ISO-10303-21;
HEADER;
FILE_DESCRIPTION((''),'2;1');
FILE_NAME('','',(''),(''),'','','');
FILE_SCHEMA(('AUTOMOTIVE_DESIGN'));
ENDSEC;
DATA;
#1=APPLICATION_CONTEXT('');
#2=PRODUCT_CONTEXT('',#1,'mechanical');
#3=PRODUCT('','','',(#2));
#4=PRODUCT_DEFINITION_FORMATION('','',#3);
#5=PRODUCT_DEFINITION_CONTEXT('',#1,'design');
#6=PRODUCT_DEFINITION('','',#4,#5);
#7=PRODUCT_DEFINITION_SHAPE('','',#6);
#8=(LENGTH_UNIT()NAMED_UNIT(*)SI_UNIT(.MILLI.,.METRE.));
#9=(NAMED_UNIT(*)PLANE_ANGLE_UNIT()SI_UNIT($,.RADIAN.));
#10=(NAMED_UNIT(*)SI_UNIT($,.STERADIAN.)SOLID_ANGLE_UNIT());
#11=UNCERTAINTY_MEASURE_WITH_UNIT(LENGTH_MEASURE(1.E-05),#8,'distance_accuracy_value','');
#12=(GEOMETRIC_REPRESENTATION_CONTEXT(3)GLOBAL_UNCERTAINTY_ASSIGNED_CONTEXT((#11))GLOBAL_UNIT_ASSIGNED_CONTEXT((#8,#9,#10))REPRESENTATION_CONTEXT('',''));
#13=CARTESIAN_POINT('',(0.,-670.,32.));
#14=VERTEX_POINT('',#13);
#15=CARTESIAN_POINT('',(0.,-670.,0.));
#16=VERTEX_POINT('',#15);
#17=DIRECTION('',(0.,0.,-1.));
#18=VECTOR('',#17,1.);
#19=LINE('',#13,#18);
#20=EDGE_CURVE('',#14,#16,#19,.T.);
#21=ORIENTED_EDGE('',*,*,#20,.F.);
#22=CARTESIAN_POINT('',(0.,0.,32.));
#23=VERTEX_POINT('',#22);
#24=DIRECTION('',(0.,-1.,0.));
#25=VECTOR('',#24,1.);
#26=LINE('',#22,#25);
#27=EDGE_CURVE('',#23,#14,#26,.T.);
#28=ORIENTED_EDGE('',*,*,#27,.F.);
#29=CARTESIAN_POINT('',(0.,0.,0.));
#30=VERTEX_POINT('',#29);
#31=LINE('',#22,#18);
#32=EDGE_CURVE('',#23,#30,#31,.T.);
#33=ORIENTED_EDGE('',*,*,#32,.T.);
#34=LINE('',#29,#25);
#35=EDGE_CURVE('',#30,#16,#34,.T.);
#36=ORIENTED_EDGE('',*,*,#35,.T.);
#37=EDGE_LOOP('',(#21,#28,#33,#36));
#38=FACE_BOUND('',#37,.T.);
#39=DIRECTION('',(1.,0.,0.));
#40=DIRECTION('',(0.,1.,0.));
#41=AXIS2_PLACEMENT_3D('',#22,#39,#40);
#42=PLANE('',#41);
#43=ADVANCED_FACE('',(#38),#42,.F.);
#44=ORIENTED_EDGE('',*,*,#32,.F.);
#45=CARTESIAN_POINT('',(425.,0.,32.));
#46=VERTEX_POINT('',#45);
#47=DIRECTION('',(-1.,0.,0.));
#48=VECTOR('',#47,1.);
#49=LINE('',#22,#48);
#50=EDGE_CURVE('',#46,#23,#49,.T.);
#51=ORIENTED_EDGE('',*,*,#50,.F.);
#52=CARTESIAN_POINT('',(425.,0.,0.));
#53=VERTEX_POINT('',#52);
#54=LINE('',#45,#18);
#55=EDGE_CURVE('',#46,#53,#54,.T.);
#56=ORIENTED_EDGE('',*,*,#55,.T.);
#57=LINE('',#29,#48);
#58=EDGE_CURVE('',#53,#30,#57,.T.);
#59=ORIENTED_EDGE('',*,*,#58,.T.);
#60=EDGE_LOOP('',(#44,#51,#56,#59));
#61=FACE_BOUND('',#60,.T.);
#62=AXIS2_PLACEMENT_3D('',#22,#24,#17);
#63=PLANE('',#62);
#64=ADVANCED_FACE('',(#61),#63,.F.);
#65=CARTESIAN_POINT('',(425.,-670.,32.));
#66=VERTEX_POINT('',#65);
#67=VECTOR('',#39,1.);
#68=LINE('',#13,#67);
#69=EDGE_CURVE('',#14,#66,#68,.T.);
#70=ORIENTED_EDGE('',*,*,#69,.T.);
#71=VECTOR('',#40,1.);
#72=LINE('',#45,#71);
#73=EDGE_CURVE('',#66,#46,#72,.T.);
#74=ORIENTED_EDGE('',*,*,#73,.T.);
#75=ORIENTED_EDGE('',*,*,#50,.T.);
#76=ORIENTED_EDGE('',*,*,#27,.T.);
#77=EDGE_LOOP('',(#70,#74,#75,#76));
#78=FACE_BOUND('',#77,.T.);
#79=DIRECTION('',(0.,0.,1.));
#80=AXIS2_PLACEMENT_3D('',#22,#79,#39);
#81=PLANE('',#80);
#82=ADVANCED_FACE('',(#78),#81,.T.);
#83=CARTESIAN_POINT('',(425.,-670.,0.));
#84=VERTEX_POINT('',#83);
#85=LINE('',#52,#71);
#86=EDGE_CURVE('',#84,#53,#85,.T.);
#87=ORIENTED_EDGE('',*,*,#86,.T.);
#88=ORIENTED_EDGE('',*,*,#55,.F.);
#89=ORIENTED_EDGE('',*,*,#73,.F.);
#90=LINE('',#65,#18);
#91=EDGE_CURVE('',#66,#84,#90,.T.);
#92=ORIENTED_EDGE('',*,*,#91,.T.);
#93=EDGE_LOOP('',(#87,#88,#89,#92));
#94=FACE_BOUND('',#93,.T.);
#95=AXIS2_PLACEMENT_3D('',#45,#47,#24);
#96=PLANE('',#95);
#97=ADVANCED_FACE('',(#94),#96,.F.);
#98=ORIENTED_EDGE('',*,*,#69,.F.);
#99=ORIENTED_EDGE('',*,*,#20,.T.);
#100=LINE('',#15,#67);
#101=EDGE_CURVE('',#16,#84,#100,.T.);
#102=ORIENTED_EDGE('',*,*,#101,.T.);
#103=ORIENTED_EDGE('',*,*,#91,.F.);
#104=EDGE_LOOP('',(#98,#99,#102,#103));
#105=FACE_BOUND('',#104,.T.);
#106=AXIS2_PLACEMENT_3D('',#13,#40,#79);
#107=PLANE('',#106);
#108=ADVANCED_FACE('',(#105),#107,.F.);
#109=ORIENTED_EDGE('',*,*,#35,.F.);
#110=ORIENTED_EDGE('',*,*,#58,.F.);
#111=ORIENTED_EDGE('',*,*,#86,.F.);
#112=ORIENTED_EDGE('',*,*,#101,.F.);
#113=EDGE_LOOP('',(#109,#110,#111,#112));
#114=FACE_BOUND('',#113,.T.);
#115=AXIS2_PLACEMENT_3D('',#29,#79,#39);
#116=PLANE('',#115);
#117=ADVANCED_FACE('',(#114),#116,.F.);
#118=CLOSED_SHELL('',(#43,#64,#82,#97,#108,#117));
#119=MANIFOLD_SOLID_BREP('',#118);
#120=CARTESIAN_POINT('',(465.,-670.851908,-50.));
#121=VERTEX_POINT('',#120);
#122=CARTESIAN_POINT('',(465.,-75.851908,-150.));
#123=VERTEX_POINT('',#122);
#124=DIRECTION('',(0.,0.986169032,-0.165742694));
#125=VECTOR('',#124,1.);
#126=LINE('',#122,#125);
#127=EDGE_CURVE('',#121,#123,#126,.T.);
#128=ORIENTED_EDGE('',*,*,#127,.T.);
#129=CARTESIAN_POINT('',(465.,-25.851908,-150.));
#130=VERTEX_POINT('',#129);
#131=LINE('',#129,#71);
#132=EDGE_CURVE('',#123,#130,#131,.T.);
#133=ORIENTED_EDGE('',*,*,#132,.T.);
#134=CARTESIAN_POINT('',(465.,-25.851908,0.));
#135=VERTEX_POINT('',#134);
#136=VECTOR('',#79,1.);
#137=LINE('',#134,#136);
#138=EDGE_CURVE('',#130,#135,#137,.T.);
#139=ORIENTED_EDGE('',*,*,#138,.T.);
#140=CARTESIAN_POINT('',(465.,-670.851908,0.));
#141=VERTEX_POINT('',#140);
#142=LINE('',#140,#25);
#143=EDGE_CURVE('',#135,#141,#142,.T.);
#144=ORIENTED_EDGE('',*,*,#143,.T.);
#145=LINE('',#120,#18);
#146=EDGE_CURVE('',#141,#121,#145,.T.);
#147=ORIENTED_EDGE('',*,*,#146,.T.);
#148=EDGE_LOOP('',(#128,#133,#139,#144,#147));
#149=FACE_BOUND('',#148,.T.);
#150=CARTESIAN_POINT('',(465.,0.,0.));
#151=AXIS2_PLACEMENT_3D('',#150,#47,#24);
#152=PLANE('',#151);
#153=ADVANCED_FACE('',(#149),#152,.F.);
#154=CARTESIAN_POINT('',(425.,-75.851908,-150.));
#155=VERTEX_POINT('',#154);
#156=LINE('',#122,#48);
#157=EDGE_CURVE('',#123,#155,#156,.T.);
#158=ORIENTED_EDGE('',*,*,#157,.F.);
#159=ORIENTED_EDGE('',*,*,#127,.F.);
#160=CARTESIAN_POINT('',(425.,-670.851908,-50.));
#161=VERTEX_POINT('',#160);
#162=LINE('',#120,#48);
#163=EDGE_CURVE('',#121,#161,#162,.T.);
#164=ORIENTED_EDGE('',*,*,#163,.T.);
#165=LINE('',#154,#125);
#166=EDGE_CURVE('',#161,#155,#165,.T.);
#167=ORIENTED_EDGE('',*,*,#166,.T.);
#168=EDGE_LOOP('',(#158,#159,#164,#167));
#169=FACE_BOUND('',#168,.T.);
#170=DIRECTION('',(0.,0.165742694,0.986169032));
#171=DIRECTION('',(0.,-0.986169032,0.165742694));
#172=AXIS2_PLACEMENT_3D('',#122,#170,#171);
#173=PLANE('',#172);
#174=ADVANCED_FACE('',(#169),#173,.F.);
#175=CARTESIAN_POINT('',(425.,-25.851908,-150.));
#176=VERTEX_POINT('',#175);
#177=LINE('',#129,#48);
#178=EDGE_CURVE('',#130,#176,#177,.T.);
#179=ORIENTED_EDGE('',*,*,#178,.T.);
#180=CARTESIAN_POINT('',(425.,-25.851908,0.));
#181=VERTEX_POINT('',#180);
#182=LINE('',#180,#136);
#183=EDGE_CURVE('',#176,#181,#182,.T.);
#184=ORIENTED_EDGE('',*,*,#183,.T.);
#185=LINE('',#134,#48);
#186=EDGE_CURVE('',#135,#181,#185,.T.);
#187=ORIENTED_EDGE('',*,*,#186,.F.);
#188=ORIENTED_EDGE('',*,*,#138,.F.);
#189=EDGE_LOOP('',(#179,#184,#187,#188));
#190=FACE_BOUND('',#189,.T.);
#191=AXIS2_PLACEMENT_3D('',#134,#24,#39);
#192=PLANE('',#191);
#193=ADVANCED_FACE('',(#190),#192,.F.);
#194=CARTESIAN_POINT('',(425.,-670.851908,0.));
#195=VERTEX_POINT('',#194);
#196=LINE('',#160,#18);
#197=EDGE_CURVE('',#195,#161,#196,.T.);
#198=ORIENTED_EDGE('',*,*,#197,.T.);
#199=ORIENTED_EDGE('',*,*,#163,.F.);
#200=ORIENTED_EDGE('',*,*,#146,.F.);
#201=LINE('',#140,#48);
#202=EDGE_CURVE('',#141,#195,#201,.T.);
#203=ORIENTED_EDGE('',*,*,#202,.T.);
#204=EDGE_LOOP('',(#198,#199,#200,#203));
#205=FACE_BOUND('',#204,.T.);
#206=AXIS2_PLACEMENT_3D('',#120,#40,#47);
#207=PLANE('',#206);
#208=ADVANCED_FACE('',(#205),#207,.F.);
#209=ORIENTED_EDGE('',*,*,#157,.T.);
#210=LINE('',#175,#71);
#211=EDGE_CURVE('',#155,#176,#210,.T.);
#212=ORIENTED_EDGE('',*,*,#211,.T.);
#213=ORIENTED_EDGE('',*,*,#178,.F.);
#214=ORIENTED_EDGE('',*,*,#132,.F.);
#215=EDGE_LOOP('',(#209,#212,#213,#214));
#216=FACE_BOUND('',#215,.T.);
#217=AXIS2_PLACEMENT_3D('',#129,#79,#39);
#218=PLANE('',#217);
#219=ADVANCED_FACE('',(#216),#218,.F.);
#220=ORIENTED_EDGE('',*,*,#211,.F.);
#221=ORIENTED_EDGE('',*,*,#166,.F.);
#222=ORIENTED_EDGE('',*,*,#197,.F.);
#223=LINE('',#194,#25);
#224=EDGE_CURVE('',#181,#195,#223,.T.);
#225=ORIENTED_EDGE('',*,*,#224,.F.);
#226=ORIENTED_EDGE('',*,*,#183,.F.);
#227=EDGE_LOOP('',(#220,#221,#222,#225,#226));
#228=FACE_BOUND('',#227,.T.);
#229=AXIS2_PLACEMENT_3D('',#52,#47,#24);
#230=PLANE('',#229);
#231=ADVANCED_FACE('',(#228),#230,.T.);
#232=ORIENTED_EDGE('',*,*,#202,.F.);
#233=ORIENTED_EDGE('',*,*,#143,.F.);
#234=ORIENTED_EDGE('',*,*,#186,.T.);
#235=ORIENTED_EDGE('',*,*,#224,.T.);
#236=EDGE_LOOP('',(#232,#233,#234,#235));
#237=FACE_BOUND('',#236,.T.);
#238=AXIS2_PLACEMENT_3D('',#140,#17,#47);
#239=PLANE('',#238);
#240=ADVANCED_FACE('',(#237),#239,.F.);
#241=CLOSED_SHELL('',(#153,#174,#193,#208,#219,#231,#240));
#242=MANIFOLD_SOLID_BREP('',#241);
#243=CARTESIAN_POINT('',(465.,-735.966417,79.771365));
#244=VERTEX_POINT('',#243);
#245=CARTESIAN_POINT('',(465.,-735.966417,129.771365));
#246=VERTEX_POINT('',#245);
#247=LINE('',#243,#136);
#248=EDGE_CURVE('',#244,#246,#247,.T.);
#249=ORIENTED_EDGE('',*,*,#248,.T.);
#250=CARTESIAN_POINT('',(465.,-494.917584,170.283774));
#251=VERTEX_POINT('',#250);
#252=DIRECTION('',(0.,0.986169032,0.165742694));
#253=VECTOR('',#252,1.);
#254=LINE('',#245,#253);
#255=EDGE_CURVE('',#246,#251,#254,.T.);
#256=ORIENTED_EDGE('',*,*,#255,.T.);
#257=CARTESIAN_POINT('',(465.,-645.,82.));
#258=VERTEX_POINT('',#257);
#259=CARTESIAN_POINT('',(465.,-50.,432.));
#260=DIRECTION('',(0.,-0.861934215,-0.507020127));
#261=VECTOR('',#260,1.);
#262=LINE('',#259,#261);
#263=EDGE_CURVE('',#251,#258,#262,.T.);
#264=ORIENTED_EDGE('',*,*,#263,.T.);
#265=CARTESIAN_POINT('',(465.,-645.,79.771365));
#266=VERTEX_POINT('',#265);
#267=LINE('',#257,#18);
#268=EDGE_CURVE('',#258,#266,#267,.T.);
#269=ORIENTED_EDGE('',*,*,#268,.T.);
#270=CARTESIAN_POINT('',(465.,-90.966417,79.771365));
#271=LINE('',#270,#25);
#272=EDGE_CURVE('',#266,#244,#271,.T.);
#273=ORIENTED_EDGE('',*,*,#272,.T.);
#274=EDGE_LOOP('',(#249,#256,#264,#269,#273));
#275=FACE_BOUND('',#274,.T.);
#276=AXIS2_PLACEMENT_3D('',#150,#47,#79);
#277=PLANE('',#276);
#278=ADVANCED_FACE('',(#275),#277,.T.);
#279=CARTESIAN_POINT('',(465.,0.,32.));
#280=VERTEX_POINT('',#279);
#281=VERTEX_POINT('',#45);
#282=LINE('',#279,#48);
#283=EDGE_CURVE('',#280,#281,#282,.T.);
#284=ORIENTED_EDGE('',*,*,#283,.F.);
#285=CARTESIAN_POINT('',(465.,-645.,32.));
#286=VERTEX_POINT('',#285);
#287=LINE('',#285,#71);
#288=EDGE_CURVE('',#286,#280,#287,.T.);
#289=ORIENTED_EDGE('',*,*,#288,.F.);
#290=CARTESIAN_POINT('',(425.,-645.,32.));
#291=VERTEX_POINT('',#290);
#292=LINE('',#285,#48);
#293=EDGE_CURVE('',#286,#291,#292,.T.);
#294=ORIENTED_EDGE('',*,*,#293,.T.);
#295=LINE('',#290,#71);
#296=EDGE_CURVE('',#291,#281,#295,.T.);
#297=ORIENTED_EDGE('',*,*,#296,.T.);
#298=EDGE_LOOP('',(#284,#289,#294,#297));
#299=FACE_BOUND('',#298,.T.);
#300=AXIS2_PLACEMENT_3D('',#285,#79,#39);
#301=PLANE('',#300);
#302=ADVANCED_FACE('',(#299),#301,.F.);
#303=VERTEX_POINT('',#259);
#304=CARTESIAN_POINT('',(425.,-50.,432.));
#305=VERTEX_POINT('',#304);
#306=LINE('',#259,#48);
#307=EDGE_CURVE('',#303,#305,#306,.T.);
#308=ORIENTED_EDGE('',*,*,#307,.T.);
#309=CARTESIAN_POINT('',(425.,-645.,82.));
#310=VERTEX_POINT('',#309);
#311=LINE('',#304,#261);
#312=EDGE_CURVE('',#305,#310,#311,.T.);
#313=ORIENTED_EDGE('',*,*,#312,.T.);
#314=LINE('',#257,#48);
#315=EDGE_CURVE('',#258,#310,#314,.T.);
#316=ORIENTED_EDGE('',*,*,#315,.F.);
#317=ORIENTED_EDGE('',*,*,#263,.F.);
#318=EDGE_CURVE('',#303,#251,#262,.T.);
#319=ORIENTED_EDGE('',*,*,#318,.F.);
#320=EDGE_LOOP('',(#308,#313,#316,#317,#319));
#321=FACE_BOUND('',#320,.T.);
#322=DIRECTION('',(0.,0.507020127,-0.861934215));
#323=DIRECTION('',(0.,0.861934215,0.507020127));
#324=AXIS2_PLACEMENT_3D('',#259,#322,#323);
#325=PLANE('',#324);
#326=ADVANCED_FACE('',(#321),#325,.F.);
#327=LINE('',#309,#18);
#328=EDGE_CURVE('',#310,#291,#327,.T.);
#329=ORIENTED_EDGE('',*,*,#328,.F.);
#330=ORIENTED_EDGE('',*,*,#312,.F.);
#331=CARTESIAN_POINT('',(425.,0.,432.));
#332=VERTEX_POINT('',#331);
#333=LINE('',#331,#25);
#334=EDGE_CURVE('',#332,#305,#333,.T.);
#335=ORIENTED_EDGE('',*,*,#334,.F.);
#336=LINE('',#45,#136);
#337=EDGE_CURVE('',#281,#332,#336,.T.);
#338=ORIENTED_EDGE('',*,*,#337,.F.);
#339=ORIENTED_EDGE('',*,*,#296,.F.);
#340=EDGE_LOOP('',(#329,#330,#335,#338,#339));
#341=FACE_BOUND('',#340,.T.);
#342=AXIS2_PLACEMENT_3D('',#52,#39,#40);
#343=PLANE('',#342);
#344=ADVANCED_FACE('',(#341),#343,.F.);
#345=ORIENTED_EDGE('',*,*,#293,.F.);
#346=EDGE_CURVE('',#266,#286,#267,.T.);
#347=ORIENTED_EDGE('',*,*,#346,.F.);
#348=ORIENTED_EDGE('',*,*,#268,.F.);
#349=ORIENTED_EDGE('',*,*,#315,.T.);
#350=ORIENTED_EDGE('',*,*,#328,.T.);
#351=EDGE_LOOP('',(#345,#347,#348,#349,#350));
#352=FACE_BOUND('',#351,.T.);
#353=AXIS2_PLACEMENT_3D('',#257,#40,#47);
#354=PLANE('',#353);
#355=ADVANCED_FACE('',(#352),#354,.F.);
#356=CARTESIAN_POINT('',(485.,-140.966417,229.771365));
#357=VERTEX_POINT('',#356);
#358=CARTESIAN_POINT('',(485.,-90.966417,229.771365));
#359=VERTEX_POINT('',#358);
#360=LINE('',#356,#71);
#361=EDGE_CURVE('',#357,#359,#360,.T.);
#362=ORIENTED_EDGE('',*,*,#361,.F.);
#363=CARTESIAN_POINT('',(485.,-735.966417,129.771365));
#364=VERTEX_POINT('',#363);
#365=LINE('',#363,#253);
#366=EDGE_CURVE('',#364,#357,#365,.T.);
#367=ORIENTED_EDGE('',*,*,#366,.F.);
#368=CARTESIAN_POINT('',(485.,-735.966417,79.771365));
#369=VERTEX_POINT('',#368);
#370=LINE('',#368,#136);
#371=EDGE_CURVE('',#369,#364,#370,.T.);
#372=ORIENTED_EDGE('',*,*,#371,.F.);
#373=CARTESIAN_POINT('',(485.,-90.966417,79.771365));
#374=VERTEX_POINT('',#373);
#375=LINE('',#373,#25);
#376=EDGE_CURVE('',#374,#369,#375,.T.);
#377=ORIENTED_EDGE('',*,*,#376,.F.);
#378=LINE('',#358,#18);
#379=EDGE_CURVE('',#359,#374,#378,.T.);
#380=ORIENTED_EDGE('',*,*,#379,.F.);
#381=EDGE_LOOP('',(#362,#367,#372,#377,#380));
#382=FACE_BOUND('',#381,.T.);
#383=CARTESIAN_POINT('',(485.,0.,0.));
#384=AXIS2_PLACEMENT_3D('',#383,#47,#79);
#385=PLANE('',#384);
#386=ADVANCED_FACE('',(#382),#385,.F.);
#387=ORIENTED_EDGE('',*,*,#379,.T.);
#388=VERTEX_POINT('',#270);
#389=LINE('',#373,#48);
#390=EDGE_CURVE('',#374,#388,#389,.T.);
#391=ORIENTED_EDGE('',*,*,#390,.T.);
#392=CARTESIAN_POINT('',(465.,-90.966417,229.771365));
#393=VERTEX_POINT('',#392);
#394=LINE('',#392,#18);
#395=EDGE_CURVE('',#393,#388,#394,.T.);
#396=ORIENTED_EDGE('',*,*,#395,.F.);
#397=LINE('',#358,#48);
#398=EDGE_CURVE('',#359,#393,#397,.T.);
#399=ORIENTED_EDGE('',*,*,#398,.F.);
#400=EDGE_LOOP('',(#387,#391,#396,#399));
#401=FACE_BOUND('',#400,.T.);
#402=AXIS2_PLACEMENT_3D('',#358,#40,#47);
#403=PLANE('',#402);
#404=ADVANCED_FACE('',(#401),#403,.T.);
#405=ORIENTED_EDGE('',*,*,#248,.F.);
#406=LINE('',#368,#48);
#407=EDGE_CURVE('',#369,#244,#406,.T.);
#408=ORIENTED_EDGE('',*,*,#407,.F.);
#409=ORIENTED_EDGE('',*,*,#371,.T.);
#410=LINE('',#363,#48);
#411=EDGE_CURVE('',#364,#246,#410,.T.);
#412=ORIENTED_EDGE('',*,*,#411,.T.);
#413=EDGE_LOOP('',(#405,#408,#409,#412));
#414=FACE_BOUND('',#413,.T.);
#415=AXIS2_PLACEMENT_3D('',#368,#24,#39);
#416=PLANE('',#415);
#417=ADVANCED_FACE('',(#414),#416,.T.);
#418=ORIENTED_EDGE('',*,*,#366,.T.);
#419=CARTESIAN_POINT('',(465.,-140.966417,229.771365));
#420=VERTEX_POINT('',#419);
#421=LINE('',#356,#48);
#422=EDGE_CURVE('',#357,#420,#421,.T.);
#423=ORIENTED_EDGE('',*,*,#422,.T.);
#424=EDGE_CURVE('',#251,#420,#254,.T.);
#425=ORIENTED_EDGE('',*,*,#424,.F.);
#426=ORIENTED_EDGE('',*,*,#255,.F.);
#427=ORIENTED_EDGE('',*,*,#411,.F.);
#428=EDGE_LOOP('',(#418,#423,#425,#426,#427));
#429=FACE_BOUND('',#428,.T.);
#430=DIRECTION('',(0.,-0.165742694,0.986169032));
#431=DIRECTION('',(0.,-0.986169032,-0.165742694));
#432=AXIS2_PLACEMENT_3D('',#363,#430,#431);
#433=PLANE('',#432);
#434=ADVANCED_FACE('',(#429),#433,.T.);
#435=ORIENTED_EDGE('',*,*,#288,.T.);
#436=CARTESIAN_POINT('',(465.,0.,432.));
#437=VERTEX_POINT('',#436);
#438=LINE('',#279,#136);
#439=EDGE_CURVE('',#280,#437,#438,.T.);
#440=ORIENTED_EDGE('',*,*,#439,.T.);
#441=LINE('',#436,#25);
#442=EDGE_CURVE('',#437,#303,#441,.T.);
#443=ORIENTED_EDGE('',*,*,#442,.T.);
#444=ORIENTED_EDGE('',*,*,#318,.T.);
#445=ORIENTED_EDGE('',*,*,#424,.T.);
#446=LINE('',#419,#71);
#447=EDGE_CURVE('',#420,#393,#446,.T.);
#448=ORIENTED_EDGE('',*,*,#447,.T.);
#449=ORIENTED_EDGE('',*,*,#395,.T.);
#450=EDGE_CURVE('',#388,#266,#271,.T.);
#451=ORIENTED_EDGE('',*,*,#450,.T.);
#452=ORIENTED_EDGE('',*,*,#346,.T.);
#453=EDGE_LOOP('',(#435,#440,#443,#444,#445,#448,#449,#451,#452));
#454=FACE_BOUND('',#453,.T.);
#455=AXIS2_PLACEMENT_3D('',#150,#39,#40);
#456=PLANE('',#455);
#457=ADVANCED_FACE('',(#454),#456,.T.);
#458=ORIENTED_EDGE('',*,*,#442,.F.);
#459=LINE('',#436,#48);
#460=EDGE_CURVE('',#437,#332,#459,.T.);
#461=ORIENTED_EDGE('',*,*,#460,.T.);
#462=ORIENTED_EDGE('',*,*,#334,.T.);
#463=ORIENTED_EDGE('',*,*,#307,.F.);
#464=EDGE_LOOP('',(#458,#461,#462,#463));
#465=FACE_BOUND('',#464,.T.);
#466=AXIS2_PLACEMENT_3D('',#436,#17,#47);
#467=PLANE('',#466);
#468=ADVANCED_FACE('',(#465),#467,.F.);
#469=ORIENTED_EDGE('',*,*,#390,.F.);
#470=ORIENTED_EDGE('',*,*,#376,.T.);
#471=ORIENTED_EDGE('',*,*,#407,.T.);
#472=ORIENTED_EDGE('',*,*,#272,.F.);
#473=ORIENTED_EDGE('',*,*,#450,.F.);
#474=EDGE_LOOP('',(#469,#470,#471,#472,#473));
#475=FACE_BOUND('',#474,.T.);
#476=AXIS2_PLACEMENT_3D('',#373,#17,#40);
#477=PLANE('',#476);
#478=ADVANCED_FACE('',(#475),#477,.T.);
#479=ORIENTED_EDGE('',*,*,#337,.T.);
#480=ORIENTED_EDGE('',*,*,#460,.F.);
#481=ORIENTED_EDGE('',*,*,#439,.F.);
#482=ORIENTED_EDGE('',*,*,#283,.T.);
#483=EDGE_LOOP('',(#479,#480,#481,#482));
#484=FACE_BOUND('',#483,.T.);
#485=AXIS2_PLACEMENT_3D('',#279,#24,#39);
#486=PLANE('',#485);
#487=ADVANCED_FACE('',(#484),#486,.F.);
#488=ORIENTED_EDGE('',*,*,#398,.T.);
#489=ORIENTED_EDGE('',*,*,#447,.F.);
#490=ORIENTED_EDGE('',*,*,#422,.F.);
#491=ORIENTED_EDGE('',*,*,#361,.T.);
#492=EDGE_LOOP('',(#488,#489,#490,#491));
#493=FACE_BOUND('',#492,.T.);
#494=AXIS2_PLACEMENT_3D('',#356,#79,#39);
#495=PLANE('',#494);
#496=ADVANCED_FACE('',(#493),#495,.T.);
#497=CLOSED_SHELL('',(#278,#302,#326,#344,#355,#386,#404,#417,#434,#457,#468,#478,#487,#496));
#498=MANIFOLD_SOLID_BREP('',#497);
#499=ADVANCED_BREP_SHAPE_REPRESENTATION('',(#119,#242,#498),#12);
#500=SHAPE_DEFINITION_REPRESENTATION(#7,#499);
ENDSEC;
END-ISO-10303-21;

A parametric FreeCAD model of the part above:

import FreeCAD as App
import Part
import Sketcher


def add_polygon(sketch, points):
    """Adds a closed chain of lines whose ends are joined by coincident constraints."""
    first, n = sketch.GeometryCount, len(points)
    for a, b in zip(points, points[1:] + points[:1]):
        sketch.addGeometry(Part.LineSegment(App.Vector(*a, 0), App.Vector(*b, 0)), False)
    for i in range(n):
        sketch.addConstraint(Sketcher.Constraint("Coincident", first + i, 2, first + (i + 1) % n, 1))

doc = App.newDocument("Part")
body = doc.addObject("PartDesign::Body", "Body")

sketch1 = doc.addObject("Sketcher::SketchObject", "Sketch")
body.addObject(sketch1)
sketch1.AttachmentSupport = (doc.XY_Plane, [""])
sketch1.MapMode = "FlatFace"
add_polygon(sketch1, [(0, 0), (0, -670), (425, -670), (425, 0)])
sketch1.addConstraint([
    Sketcher.Constraint("Vertical", 0),
    Sketcher.Constraint("Horizontal", 1),
    Sketcher.Constraint("Vertical", 2),
    Sketcher.Constraint("Horizontal", 3),
    Sketcher.Constraint("Coincident", 3, 2, -1, 1),
    Sketcher.Constraint("DistanceX", 1, 1, 1, 2, 425.0),
    Sketcher.Constraint("DistanceY", 0, 2, 0, 1, 670.0),
])
pad1 = doc.addObject("PartDesign::Pad", "Pad")
body.addObject(pad1)
pad1.Profile = sketch1
pad1.Length = 32
body2 = doc.addObject("PartDesign::Body", "Body001")

sketch2 = doc.addObject("Sketcher::SketchObject", "Sketch001")
body2.addObject(sketch2)
sketch2.AttachmentSupport = (doc.getObject("YZ_Plane001"), [""])
sketch2.MapMode = "FlatFace"
sketch2.AttachmentOffset = App.Placement(App.Vector(0, 0, 425), App.Rotation())
add_polygon(sketch2, [(0, 32), (0, 432), (-50, 432), (-645, 82), (-645, 32)])
sketch2.addConstraint([
    Sketcher.Constraint("Vertical", 0),
    Sketcher.Constraint("Horizontal", 1),
    Sketcher.Constraint("Vertical", 3),
    Sketcher.Constraint("Horizontal", 4),
    Sketcher.Constraint("PointOnObject", 0, 2, -2),
    Sketcher.Constraint("Equal", 1, 3),
    Sketcher.Constraint("DistanceX", 1, 2, 1, 1, 50.0),
    Sketcher.Constraint("DistanceX", 4, 1, 4, 2, 645.0),
    Sketcher.Constraint("DistanceY", 0, 1, 0, 2, 400.0),
    Sketcher.Constraint("DistanceY", -1, 1, 0, 2, 432.0),
])
pad2 = doc.addObject("PartDesign::Pad", "Pad001")
body2.addObject(pad2)
pad2.Profile = sketch2
pad2.Length = 40

sketch3 = doc.addObject("Sketcher::SketchObject", "Sketch002")
body2.addObject(sketch3)
sketch3.AttachmentSupport = (doc.getObject("YZ_Plane001"), [""])
sketch3.MapMode = "FlatFace"
sketch3.AttachmentOffset = App.Placement(App.Vector(0, 0, 465), App.Rotation())
add_polygon(sketch3, [(-91, 80), (-91, 230), (-141, 230), (-736, 130), (-736, 80)])
sketch3.addConstraint([
    Sketcher.Constraint("Vertical", 0),
    Sketcher.Constraint("Horizontal", 1),
    Sketcher.Constraint("Vertical", 3),
    Sketcher.Constraint("Horizontal", 4),
    Sketcher.Constraint("Equal", 1, 3),
    Sketcher.Constraint("DistanceX", 1, 2, 1, 1, 50.0),
    Sketcher.Constraint("DistanceX", 4, 1, 4, 2, 645.0),
    Sketcher.Constraint("DistanceY", 0, 1, 0, 2, 150.0),
    Sketcher.Constraint("DistanceX", 0, 2, -1, 1, 90.966417),
    Sketcher.Constraint("DistanceY", -1, 1, 0, 2, 229.771365),
])
pad3 = doc.addObject("PartDesign::Pad", "Pad002")
body2.addObject(pad3)
pad3.Profile = sketch3
pad3.Length = 20
body3 = doc.addObject("PartDesign::Body", "Body002")

sketch4 = doc.addObject("Sketcher::SketchObject", "Sketch003")
body3.addObject(sketch4)
sketch4.AttachmentSupport = (doc.getObject("YZ_Plane002"), [""])
sketch4.MapMode = "FlatFace"
sketch4.AttachmentOffset = App.Placement(App.Vector(0, 0, 425), App.Rotation())
add_polygon(sketch4, [(-26, -150), (-26, 0), (-671, 0), (-671, -50), (-76, -150)])
sketch4.addConstraint([
    Sketcher.Constraint("Vertical", 0),
    Sketcher.Constraint("Horizontal", 1),
    Sketcher.Constraint("Vertical", 2),
    Sketcher.Constraint("Horizontal", 4),
    Sketcher.Constraint("PointOnObject", 0, 2, -1),
    Sketcher.Constraint("Equal", 4, 2),
    Sketcher.Constraint("DistanceX", 1, 2, 1, 1, 645.0),
    Sketcher.Constraint("DistanceX", 4, 1, 4, 2, 50.0),
    Sketcher.Constraint("DistanceY", 0, 1, 0, 2, 150.0),
    Sketcher.Constraint("DistanceX", 0, 2, -1, 1, 25.851908),
])
pad4 = doc.addObject("PartDesign::Pad", "Pad003")
body3.addObject(pad4)
pad4.Profile = sketch4
pad4.Length = 40

doc.recompute()
